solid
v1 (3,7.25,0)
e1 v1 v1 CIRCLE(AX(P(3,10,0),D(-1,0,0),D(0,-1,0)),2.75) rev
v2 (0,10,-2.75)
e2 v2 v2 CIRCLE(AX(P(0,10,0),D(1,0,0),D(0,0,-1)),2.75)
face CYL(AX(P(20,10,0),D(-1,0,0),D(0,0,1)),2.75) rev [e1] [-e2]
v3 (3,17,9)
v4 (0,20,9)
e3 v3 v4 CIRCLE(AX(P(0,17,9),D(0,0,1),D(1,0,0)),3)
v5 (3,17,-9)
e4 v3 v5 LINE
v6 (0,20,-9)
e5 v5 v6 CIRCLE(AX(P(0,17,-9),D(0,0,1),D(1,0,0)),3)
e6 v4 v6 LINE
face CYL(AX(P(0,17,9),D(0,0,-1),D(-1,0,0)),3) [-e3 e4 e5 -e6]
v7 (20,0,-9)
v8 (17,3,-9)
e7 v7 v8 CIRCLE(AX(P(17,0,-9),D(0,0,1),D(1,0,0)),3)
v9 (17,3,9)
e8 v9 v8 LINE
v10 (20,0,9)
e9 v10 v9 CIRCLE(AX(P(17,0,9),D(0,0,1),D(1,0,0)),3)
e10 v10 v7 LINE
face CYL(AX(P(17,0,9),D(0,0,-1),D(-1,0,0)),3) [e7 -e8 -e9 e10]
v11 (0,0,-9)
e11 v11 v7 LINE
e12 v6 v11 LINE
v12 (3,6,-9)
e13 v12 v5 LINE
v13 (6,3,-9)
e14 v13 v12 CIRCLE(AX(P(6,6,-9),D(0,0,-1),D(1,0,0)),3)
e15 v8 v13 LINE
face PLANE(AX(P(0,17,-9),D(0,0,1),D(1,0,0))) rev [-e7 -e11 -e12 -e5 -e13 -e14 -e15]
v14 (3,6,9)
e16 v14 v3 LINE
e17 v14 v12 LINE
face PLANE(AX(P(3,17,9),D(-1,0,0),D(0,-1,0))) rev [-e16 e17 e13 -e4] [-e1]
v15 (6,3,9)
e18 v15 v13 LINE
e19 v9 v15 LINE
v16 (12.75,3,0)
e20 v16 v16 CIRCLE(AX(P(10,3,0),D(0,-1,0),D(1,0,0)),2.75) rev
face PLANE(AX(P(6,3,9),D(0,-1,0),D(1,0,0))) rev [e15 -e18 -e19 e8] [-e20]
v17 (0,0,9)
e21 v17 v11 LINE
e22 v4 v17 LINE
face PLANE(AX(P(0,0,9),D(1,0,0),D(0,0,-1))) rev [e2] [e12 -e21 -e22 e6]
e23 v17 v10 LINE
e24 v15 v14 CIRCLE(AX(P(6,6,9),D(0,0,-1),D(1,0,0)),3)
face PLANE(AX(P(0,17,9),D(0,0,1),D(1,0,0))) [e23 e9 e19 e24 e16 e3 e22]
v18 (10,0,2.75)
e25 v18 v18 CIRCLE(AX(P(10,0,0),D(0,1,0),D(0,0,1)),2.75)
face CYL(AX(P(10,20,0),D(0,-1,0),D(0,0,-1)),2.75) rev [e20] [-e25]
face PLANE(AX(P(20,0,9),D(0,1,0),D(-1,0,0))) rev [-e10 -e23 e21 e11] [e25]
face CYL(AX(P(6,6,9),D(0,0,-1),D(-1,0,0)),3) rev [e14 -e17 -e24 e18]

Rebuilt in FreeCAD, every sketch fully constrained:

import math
import FreeCAD as App
import Part
import Sketcher
from FreeCAD import Vector

doc = App.newDocument("Part")
body = doc.addObject("PartDesign::Body", "Body")

# Sketch on XY plane
sketch1 = body.newObject("Sketcher::SketchObject", "Sketch")
sketch1.AttachmentSupport = (doc.getObject("XY_Plane"), [""])
sketch1.MapMode = "FlatFace"
sketch1.addGeometry([
    Part.LineSegment(Vector(0, 20, 0), Vector(0, 0, 0)),  # 0
    Part.LineSegment(Vector(0, 0, 0), Vector(20, 0, 0)),  # 1
    Part.ArcOfCircle(Part.Circle(Vector(17, 0, 0), Vector(0, 0, 1), 3), math.radians(0), math.radians(90)),  # 2
    Part.LineSegment(Vector(17, 3, 0), Vector(6, 3, 0)),  # 3
    Part.ArcOfCircle(Part.Circle(Vector(6, 6, 0), Vector(0, 0, 1), 3), math.radians(180), math.radians(270)),  # 4
    Part.LineSegment(Vector(3, 6, 0), Vector(3, 17, 0)),  # 5
    Part.ArcOfCircle(Part.Circle(Vector(0, 17, 0), Vector(0, 0, 1), 3), math.radians(0), math.radians(90)),  # 6
], False)
sketch1.addConstraint([
    Sketcher.Constraint("Coincident", 0, 2, 1, 1),
    Sketcher.Constraint("Coincident", 1, 2, 2, 1),
    Sketcher.Constraint("Tangent", 2, 2, 3, 1),
    Sketcher.Constraint("Tangent", 3, 2, 4, 2),
    Sketcher.Constraint("Tangent", 4, 1, 5, 1),
    Sketcher.Constraint("Tangent", 5, 2, 6, 1),
    Sketcher.Constraint("Coincident", 6, 2, 0, 1),
    Sketcher.Constraint("Vertical", 0),
    Sketcher.Constraint("Horizontal", 1),
    Sketcher.Constraint("Horizontal", 3),
    Sketcher.Constraint("Vertical", 5),
    Sketcher.Constraint("Coincident", 0, 2, -1, 1),
    Sketcher.Constraint("Equal", 2, 4),
    Sketcher.Constraint("Equal", 4, 6),
    Sketcher.Constraint("PointOnObject", 2, 3, -1),
    Sketcher.Constraint("PointOnObject", 6, 3, -2),
    Sketcher.Constraint("Equal", 1, 0),
    Sketcher.Constraint("Radius", 2, 3.0),
    Sketcher.Constraint("DistanceX", 1, 1, 1, 2, 20.0),
])
pad1 = body.newObject("PartDesign::Pad", "Pad")
pad1.Profile = sketch1
pad1.Length = 18
pad1.Midplane = True

# Sketch on XZ plane
sketch2 = body.newObject("Sketcher::SketchObject", "Sketch001")
sketch2.AttachmentSupport = (doc.getObject("XZ_Plane"), [""])
sketch2.MapMode = "FlatFace"
sketch2.addGeometry(Part.Circle(Vector(10, 0, 0), Vector(0, 0, 1), 2.8), False)
sketch2.addConstraint([
    Sketcher.Constraint("PointOnObject", 0, 3, -1),
    Sketcher.Constraint("Diameter", 0, 5.5),
    Sketcher.Constraint("DistanceX", -1, 1, 0, 3, 10.0),
])
pocket1 = body.newObject("PartDesign::Pocket", "Pocket")
pocket1.Profile = sketch2
pocket1.Type = "ThroughAll"

# Sketch on YZ plane
sketch3 = body.newObject("Sketcher::SketchObject", "Sketch002")
sketch3.AttachmentSupport = (doc.getObject("YZ_Plane"), [""])
sketch3.MapMode = "FlatFace"
sketch3.addGeometry(Part.Circle(Vector(10, 0, 0), Vector(0, 0, 1), 2.8), False)
sketch3.addConstraint([
    Sketcher.Constraint("PointOnObject", 0, 3, -1),
    Sketcher.Constraint("Diameter", 0, 5.5),
    Sketcher.Constraint("DistanceX", -1, 1, 0, 3, 10.0),
])
pocket2 = body.newObject("PartDesign::Pocket", "Pocket001")
pocket2.Profile = sketch3
pocket2.Type = "ThroughAll"
pocket2.Reversed = True

doc.recompute()
